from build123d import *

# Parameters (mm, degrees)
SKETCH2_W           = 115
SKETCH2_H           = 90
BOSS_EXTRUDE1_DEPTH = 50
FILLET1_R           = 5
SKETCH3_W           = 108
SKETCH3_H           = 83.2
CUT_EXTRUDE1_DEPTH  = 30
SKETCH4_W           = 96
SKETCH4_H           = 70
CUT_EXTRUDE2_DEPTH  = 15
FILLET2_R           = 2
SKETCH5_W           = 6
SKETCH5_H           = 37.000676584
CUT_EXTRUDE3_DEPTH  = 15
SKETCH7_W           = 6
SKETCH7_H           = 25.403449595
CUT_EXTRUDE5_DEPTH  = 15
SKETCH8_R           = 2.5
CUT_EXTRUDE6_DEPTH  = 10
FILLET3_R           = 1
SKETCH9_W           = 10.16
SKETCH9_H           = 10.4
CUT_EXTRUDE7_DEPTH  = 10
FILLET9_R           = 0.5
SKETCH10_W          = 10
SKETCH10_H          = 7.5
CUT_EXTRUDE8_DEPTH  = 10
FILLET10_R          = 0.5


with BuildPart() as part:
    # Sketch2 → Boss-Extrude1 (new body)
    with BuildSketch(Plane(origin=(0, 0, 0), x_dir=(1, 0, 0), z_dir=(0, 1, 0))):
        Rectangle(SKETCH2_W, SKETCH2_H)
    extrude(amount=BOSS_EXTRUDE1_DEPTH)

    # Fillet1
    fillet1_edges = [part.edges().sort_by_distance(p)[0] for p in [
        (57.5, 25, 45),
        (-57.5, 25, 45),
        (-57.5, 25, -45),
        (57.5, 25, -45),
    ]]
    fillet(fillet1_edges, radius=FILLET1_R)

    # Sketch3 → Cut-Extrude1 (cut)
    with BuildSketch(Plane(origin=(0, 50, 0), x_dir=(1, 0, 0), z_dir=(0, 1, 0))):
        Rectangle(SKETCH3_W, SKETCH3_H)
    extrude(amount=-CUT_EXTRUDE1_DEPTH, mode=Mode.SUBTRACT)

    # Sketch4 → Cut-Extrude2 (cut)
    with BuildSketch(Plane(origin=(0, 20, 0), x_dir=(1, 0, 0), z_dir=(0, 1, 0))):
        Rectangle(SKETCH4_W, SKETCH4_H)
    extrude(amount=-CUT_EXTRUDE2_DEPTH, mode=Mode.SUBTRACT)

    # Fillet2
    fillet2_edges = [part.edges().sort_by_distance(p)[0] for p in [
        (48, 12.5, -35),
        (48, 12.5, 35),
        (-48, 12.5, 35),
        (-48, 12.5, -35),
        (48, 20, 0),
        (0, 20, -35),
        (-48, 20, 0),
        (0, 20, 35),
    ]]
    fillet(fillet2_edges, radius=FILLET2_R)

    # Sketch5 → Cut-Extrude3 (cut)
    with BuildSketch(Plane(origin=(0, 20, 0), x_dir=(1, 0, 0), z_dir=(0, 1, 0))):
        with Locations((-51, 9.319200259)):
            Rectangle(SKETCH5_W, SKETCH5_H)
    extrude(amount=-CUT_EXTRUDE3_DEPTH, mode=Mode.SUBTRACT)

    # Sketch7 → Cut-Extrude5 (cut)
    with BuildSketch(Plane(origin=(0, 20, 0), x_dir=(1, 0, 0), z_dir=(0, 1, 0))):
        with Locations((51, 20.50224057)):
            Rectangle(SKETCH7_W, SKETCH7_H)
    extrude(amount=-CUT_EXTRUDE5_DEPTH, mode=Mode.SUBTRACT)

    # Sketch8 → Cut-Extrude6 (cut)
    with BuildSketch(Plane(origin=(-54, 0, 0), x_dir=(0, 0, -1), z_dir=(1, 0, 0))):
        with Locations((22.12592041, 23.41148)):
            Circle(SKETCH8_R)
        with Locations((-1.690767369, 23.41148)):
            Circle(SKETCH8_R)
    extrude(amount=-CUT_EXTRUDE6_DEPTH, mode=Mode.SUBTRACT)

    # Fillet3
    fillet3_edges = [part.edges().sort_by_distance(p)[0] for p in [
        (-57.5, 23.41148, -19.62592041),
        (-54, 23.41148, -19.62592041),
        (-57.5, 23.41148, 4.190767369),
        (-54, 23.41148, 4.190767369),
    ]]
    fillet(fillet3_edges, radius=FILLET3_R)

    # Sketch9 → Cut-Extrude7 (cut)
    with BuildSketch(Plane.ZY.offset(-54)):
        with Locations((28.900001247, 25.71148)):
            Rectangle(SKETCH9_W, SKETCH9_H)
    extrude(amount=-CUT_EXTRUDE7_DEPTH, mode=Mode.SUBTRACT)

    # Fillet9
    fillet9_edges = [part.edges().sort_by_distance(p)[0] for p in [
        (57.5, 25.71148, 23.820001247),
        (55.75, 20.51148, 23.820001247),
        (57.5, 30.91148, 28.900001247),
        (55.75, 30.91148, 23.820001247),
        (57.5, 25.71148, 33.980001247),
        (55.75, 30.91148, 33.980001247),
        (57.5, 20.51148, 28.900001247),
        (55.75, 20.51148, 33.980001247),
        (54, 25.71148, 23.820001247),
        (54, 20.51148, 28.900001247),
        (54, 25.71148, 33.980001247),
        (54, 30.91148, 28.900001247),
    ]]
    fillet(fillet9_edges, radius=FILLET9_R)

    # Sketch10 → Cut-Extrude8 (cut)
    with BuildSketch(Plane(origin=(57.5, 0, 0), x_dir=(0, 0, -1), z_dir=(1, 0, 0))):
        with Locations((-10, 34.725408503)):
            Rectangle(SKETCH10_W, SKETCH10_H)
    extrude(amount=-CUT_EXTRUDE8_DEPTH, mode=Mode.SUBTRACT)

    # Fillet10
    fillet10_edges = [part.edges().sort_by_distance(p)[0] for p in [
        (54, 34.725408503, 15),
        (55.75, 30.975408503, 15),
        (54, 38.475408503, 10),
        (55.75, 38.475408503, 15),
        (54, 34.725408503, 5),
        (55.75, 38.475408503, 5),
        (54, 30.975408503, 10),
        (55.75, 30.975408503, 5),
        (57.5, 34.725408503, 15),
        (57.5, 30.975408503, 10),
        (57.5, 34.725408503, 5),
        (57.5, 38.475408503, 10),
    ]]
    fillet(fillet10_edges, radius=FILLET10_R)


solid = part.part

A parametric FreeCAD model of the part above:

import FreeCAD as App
import Part
import Sketcher

V = App.Vector


def edges_at(feature, points):
    """Names of the edges that pass closest to the given points."""
    edges = feature.Shape.Edges
    near = lambda p: min(range(len(edges)), key=lambda i: edges[i].distToShape(Part.Vertex(*p))[0])
    return sorted({f"Edge{near(p) + 1}" for p in points})


def add_polygon(sketch, points):
    """Adds a closed chain of lines whose ends are joined by coincident constraints."""
    first, n = sketch.GeometryCount, len(points)
    for a, b in zip(points, points[1:] + points[:1]):
        sketch.addGeometry(Part.LineSegment(App.Vector(*a, 0), App.Vector(*b, 0)), False)
    for i in range(n):
        sketch.addConstraint(Sketcher.Constraint("Coincident", first + i, 2, first + (i + 1) % n, 1))

doc = App.newDocument("Part")
body = doc.addObject("PartDesign::Body", "Body")

# Sketch on XZ plane
sketch1 = body.newObject("Sketcher::SketchObject", "Sketch")
sketch1.AttachmentSupport = (doc.getObject("XZ_Plane"), [""])
sketch1.MapMode = "FlatFace"
add_polygon(sketch1, [(-57.5, -45), (-57.5, 45), (57.5, 45), (57.5, -45)])  # lines 0-3
sketch1.addConstraint([
    Sketcher.Constraint("Vertical", 0),
    Sketcher.Constraint("Horizontal", 1),
    Sketcher.Constraint("Vertical", 2),
    Sketcher.Constraint("Horizontal", 3),
    Sketcher.Constraint("Symmetric", 0, 2, 2, 2, -1, 1),
    Sketcher.Constraint("DistanceX", 1, 1, 1, 2, 115.0),
    Sketcher.Constraint("DistanceY", 0, 1, 0, 2, 90.0),
])
pad1 = body.newObject("PartDesign::Pad", "Pad")
pad1.Profile = sketch1
pad1.Length = 50
pad1.Reversed = True
doc.recompute()

fillet = body.newObject("PartDesign::Fillet", "Fillet")
fillet.Base = (pad1, edges_at(pad1, [
    (57.5, 25, 45),
    (-57.5, 25, 45),
    (-57.5, 25, -45),
    (57.5, 25, -45),
]))
fillet.Radius = 5

# Sketch on XZ plane
sketch2 = body.newObject("Sketcher::SketchObject", "Sketch001")
sketch2.AttachmentSupport = (doc.getObject("XZ_Plane"), [""])
sketch2.MapMode = "FlatFace"
sketch2.AttachmentOffset = App.Placement(V(0, 0, -50), App.Rotation())
add_polygon(sketch2, [(-54, -41.6), (-54, 41.6), (54, 41.6), (54, -41.6)])  # lines 0-3
sketch2.addConstraint([
    Sketcher.Constraint("Vertical", 0),
    Sketcher.Constraint("Horizontal", 1),
    Sketcher.Constraint("Vertical", 2),
    Sketcher.Constraint("Horizontal", 3),
    Sketcher.Constraint("Symmetric", 0, 2, 2, 2, -1, 1),
    Sketcher.Constraint("DistanceX", 1, 1, 1, 2, 108.0),
    Sketcher.Constraint("DistanceY", 0, 1, 0, 2, 83.2),
])
pocket1 = body.newObject("PartDesign::Pocket", "Pocket")
pocket1.Profile = sketch2
pocket1.Length = 30
pocket1.Reversed = True

# Sketch on XZ plane
sketch3 = body.newObject("Sketcher::SketchObject", "Sketch002")
sketch3.AttachmentSupport = (doc.getObject("XZ_Plane"), [""])
sketch3.MapMode = "FlatFace"
sketch3.AttachmentOffset = App.Placement(V(0, 0, -20), App.Rotation())
add_polygon(sketch3, [(-48, -35), (-48, 35), (48, 35), (48, -35)])  # lines 0-3
sketch3.addConstraint([
    Sketcher.Constraint("Vertical", 0),
    Sketcher.Constraint("Horizontal", 1),
    Sketcher.Constraint("Vertical", 2),
    Sketcher.Constraint("Horizontal", 3),
    Sketcher.Constraint("Symmetric", 0, 2, 2, 2, -1, 1),
    Sketcher.Constraint("DistanceX", 1, 1, 1, 2, 96.0),
    Sketcher.Constraint("DistanceY", 0, 1, 0, 2, 70.0),
])
pocket2 = body.newObject("PartDesign::Pocket", "Pocket001")
pocket2.Profile = sketch3
pocket2.Length = 15
pocket2.Reversed = True
doc.recompute()

fillet2 = body.newObject("PartDesign::Fillet", "Fillet001")
fillet2.Base = (pocket2, edges_at(pocket2, [
    (48, 12.5, -35),
    (48, 12.5, 35),
    (-48, 12.5, 35),
    (-48, 12.5, -35),
    (48, 20, 0),
    (0, 20, -35),
    (-48, 20, 0),
    (0, 20, 35),
]))
fillet2.Radius = 2

# Sketch on XZ plane
sketch4 = body.newObject("Sketcher::SketchObject", "Sketch003")
sketch4.AttachmentSupport = (doc.getObject("XZ_Plane"), [""])
sketch4.MapMode = "FlatFace"
sketch4.AttachmentOffset = App.Placement(V(0, 0, -20), App.Rotation())
add_polygon(sketch4, [(-54, -27.819539), (-54, 9.181138), (-48, 9.181138), (-48, -27.819539)])  # lines 0-3
sketch4.addConstraint([
    Sketcher.Constraint("Vertical", 0),
    Sketcher.Constraint("Horizontal", 1),
    Sketcher.Constraint("Vertical", 2),
    Sketcher.Constraint("Horizontal", 3),
    Sketcher.Constraint("DistanceX", 1, 1, 1, 2, 6.0),
    Sketcher.Constraint("DistanceX", 0, 2, -1, 1, 54.0),
    Sketcher.Constraint("DistanceY", 0, 1, 0, 2, 37.000677),
    Sketcher.Constraint("DistanceY", -1, 1, 0, 2, 9.181138),
])
pocket3 = body.newObject("PartDesign::Pocket", "Pocket002")
pocket3.Profile = sketch4
pocket3.Length = 15
pocket3.Reversed = True

# Sketch on XZ plane
sketch5 = body.newObject("Sketcher::SketchObject", "Sketch004")
sketch5.AttachmentSupport = (doc.getObject("XZ_Plane"), [""])
sketch5.MapMode = "FlatFace"
sketch5.AttachmentOffset = App.Placement(V(0, 0, -20), App.Rotation())
add_polygon(sketch5, [(48, -33.203965), (48, -7.800516), (54, -7.800516), (54, -33.203965)])  # lines 0-3
sketch5.addConstraint([
    Sketcher.Constraint("Vertical", 0),
    Sketcher.Constraint("Horizontal", 1),
    Sketcher.Constraint("Vertical", 2),
    Sketcher.Constraint("Horizontal", 3),
    Sketcher.Constraint("DistanceX", 1, 1, 1, 2, 6.0),
    Sketcher.Constraint("DistanceX", -1, 1, 0, 2, 48.0),
    Sketcher.Constraint("DistanceY", 0, 1, 0, 2, 25.40345),
    Sketcher.Constraint("DistanceY", 0, 2, -1, 1, 7.800516),
])
pocket4 = body.newObject("PartDesign::Pocket", "Pocket003")
pocket4.Profile = sketch5
pocket4.Length = 15
pocket4.Reversed = True

# Sketch on YZ plane
sketch6 = body.newObject("Sketcher::SketchObject", "Sketch005")
sketch6.AttachmentSupport = (doc.getObject("YZ_Plane"), [""])
sketch6.MapMode = "FlatFace"
sketch6.AttachmentOffset = App.Placement(V(0, 0, -54), App.Rotation())
sketch6.addGeometry([
    Part.Circle(V(23.41148, -22.12592, 0), V(0, 0, 1), 2.5),
    Part.Circle(V(23.41148, 1.690767, 0), V(0, 0, 1), 2.5),
], False)
sketch6.addConstraint([
    Sketcher.Constraint("Equal", 0, 1),
    Sketcher.Constraint("Vertical", 0, 3, 1, 3),
    Sketcher.Constraint("Diameter", 0, 5.0),
    Sketcher.Constraint("DistanceX", -1, 1, 0, 3, 23.41148),
    Sketcher.Constraint("DistanceY", 0, 3, -1, 1, 22.12592),
    Sketcher.Constraint("DistanceY", -1, 1, 1, 3, 1.690767),
])
pocket5 = body.newObject("PartDesign::Pocket", "Pocket004")
pocket5.Profile = sketch6
pocket5.Length = 10
doc.recompute()

fillet3 = body.newObject("PartDesign::Fillet", "Fillet002")
fillet3.Base = (pocket5, edges_at(pocket5, [
    (-57.5, 23.411, -19.626),
    (-54, 23.411, -19.626),
    (-57.5, 23.411, 4.191),
    (-54, 23.411, 4.191),
]))
fillet3.Radius = 1

# Sketch on YZ plane
sketch7 = body.newObject("Sketcher::SketchObject", "Sketch006")
sketch7.AttachmentSupport = (doc.getObject("YZ_Plane"), [""])
sketch7.MapMode = "FlatFace"
sketch7.AttachmentOffset = App.Placement(V(0, 0, 54), App.Rotation())
add_polygon(sketch7, [(30.91148, 23.820001), (20.51148, 23.820001), (20.51148, 33.980001), (30.91148, 33.980001)])  # lines 0-3
sketch7.addConstraint([
    Sketcher.Constraint("Horizontal", 0),
    Sketcher.Constraint("Vertical", 1),
    Sketcher.Constraint("Horizontal", 2),
    Sketcher.Constraint("Vertical", 3),
    Sketcher.Constraint("DistanceX", 0, 2, 0, 1, 10.4),
    Sketcher.Constraint("DistanceY", 1, 1, 1, 2, 10.16),
    Sketcher.Constraint("DistanceY", -1, 1, 0, 2, 23.820001),
    Sketcher.Constraint("DistanceX", -1, 1, 0, 2, 20.51148),
])
pocket6 = body.newObject("PartDesign::Pocket", "Pocket005")
pocket6.Profile = sketch7
pocket6.Length = 10
pocket6.Reversed = True
doc.recompute()

fillet4 = body.newObject("PartDesign::Fillet", "Fillet003")
fillet4.Base = (pocket6, edges_at(pocket6, [
    (57.5, 25.711, 23.82),
    (55.75, 20.511, 23.82),
    (57.5, 30.911, 28.9),
    (55.75, 30.911, 23.82),
    (57.5, 25.711, 33.98),
    (55.75, 30.911, 33.98),
    (57.5, 20.511, 28.9),
    (55.75, 20.511, 33.98),
    (54, 25.711, 23.82),
    (54, 20.511, 28.9),
    (54, 25.711, 33.98),
    (54, 30.911, 28.9),
]))
fillet4.Radius = 0.5

# Sketch on YZ plane
sketch8 = body.newObject("Sketcher::SketchObject", "Sketch007")
sketch8.AttachmentSupport = (doc.getObject("YZ_Plane"), [""])
sketch8.MapMode = "FlatFace"
sketch8.AttachmentOffset = App.Placement(V(0, 0, 57.5), App.Rotation())
add_polygon(sketch8, [(38.475409, 15), (30.975409, 15), (30.975409, 5), (38.475409, 5)])  # lines 0-3
sketch8.addConstraint([
    Sketcher.Constraint("Horizontal", 0),
    Sketcher.Constraint("Vertical", 1),
    Sketcher.Constraint("Horizontal", 2),
    Sketcher.Constraint("Vertical", 3),
    Sketcher.Constraint("DistanceY", 1, 2, 1, 1, 10.0),
    Sketcher.Constraint("DistanceX", 0, 2, 0, 1, 7.5),
    Sketcher.Constraint("DistanceY", -1, 1, 0, 2, 15.0),
    Sketcher.Constraint("DistanceX", -1, 1, 0, 2, 30.975409),
])
pocket7 = body.newObject("PartDesign::Pocket", "Pocket006")
pocket7.Profile = sketch8
pocket7.Length = 10
doc.recompute()

fillet5 = body.newObject("PartDesign::Fillet", "Fillet004")
fillet5.Base = (pocket7, edges_at(pocket7, [
    (54, 34.725, 15),
    (55.75, 30.975, 15),
    (54, 38.475, 10),
    (55.75, 38.475, 15),
    (54, 34.725, 5),
    (55.75, 38.475, 5),
    (54, 30.975, 10),
    (55.75, 30.975, 5),
    (57.5, 34.725, 15),
    (57.5, 30.975, 10),
    (57.5, 34.725, 5),
    (57.5, 38.475, 10),
]))
fillet5.Radius = 0.5

doc.recompute()
